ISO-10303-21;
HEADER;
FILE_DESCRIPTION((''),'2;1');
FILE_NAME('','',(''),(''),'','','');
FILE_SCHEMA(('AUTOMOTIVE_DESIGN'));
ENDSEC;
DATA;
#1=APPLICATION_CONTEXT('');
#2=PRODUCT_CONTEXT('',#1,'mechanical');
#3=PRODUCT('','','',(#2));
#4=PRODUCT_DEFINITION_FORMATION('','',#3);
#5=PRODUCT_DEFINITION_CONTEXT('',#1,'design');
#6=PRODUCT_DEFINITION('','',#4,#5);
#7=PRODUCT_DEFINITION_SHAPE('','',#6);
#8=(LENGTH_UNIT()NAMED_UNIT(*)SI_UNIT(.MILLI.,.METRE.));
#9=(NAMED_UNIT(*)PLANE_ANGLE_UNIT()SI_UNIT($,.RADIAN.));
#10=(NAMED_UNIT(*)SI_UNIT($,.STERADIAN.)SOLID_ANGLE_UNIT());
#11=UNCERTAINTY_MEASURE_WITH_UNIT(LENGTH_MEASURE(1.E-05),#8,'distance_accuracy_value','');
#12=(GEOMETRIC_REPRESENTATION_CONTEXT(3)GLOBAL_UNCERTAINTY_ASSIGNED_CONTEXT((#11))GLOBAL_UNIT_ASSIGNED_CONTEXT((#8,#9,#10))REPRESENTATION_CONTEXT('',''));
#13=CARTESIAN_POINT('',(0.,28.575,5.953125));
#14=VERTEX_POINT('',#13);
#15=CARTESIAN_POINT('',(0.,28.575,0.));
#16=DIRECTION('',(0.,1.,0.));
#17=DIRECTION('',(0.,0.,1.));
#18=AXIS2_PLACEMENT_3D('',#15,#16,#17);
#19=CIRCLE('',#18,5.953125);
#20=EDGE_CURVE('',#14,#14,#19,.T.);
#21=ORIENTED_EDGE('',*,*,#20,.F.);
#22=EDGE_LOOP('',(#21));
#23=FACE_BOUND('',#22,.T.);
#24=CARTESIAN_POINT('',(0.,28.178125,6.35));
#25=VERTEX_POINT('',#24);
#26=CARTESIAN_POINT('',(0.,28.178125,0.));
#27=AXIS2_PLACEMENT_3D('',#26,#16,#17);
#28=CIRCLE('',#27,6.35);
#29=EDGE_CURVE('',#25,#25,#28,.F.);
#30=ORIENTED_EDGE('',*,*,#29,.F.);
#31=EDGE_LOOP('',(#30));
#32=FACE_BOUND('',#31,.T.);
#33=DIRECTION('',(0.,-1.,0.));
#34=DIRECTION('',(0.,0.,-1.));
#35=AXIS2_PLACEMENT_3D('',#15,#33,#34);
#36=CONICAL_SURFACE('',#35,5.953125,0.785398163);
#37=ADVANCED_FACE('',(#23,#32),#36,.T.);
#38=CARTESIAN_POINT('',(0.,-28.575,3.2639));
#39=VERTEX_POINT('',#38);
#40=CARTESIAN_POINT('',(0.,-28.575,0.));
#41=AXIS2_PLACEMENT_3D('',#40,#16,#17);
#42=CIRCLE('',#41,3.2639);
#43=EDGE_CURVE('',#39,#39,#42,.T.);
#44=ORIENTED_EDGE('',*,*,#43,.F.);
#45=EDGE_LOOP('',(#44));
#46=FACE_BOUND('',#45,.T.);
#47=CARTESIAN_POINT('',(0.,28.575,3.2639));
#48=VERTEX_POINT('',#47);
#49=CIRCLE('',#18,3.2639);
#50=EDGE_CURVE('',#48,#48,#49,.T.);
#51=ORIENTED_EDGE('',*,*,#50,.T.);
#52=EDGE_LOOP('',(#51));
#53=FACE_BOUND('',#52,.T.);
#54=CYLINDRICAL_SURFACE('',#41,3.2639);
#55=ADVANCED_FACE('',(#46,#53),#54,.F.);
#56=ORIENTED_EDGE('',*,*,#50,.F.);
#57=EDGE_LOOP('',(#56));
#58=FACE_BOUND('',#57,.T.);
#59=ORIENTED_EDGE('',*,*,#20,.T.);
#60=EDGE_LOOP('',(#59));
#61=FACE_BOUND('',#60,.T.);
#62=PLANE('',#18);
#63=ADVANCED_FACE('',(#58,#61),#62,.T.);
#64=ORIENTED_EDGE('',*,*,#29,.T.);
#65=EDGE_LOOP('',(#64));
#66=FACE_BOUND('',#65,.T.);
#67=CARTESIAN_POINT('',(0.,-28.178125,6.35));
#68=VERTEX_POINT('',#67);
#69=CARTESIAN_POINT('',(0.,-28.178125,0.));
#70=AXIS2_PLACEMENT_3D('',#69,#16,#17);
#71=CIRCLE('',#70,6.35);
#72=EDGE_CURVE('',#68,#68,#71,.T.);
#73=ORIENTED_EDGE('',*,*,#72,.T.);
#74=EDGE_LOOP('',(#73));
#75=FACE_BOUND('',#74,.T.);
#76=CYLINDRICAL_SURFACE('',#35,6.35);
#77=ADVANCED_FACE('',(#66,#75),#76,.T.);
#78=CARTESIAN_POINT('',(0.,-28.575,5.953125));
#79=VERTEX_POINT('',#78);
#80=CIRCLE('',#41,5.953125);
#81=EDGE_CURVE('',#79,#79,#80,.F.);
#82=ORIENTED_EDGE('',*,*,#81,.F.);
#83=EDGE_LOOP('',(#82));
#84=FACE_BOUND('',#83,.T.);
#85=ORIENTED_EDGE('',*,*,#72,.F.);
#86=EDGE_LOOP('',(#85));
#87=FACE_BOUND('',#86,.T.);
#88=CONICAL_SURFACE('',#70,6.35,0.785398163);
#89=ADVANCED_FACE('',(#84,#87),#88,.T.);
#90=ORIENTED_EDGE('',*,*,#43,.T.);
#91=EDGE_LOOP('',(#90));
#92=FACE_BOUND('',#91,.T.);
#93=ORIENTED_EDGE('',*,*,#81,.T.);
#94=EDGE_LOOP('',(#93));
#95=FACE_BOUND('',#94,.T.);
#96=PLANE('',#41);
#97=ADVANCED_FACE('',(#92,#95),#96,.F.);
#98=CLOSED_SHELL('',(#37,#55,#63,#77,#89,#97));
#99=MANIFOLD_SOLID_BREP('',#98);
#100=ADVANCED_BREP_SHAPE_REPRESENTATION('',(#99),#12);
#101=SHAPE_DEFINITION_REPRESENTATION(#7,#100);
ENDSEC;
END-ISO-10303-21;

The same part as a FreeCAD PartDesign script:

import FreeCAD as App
import Part
import Sketcher
Q = App.Units.Quantity


def edges_at(feature, points):
    """Names of the edges that pass closest to the given points."""
    edges = feature.Shape.Edges
    near = lambda p: min(range(len(edges)), key=lambda i: edges[i].distToShape(Part.Vertex(*p))[0])
    return sorted({f"Edge{near(p) + 1}" for p in points})

doc = App.newDocument("Part")
body = doc.addObject("PartDesign::Body", "Body")

sketch1 = body.newObject("Sketcher::SketchObject", "Sketch")
sketch1.AttachmentSupport = (doc.getObject("XZ_Plane"), [""])
sketch1.MapMode = "FlatFace"
sketch1.addGeometry(Part.Circle(App.Vector(0, 0, 0), App.Vector(0, 0, 1), 6.35), False)
sketch1.addConstraint([
    Sketcher.Constraint("Coincident", 0, 3, -1, 1),
    Sketcher.Constraint("Diameter", 0, Q("0.5 in")),
])
pad1 = body.newObject("PartDesign::Pad", "Pad")
pad1.Profile = sketch1
pad1.Length = Q("2.25 in")
pad1.Midplane = True
doc.recompute()

chamfer = body.newObject("PartDesign::Chamfer", "Chamfer")
chamfer.Base = (pad1, edges_at(pad1, [(0, -28.575, -6.35), (0, 28.575, -6.35)]))
chamfer.Size = Q("0.015625 in")

sketch2 = body.newObject("Sketcher::SketchObject", "Sketch001")
sketch2.AttachmentSupport = (doc.getObject("XZ_Plane"), [""])
sketch2.MapMode = "FlatFace"
sketch2.addGeometry(Part.Circle(App.Vector(0, 0, 0), App.Vector(0, 0, 1), 3.2639), False)
sketch2.addConstraint([
    Sketcher.Constraint("Coincident", 0, 3, -1, 1),
    Sketcher.Constraint("Diameter", 0, Q("0.257 in")),
])
pocket1 = body.newObject("PartDesign::Pocket", "Pocket")
pocket1.Profile = sketch2
pocket1.Type = "ThroughAll"
pocket1.Midplane = True

doc.recompute()
